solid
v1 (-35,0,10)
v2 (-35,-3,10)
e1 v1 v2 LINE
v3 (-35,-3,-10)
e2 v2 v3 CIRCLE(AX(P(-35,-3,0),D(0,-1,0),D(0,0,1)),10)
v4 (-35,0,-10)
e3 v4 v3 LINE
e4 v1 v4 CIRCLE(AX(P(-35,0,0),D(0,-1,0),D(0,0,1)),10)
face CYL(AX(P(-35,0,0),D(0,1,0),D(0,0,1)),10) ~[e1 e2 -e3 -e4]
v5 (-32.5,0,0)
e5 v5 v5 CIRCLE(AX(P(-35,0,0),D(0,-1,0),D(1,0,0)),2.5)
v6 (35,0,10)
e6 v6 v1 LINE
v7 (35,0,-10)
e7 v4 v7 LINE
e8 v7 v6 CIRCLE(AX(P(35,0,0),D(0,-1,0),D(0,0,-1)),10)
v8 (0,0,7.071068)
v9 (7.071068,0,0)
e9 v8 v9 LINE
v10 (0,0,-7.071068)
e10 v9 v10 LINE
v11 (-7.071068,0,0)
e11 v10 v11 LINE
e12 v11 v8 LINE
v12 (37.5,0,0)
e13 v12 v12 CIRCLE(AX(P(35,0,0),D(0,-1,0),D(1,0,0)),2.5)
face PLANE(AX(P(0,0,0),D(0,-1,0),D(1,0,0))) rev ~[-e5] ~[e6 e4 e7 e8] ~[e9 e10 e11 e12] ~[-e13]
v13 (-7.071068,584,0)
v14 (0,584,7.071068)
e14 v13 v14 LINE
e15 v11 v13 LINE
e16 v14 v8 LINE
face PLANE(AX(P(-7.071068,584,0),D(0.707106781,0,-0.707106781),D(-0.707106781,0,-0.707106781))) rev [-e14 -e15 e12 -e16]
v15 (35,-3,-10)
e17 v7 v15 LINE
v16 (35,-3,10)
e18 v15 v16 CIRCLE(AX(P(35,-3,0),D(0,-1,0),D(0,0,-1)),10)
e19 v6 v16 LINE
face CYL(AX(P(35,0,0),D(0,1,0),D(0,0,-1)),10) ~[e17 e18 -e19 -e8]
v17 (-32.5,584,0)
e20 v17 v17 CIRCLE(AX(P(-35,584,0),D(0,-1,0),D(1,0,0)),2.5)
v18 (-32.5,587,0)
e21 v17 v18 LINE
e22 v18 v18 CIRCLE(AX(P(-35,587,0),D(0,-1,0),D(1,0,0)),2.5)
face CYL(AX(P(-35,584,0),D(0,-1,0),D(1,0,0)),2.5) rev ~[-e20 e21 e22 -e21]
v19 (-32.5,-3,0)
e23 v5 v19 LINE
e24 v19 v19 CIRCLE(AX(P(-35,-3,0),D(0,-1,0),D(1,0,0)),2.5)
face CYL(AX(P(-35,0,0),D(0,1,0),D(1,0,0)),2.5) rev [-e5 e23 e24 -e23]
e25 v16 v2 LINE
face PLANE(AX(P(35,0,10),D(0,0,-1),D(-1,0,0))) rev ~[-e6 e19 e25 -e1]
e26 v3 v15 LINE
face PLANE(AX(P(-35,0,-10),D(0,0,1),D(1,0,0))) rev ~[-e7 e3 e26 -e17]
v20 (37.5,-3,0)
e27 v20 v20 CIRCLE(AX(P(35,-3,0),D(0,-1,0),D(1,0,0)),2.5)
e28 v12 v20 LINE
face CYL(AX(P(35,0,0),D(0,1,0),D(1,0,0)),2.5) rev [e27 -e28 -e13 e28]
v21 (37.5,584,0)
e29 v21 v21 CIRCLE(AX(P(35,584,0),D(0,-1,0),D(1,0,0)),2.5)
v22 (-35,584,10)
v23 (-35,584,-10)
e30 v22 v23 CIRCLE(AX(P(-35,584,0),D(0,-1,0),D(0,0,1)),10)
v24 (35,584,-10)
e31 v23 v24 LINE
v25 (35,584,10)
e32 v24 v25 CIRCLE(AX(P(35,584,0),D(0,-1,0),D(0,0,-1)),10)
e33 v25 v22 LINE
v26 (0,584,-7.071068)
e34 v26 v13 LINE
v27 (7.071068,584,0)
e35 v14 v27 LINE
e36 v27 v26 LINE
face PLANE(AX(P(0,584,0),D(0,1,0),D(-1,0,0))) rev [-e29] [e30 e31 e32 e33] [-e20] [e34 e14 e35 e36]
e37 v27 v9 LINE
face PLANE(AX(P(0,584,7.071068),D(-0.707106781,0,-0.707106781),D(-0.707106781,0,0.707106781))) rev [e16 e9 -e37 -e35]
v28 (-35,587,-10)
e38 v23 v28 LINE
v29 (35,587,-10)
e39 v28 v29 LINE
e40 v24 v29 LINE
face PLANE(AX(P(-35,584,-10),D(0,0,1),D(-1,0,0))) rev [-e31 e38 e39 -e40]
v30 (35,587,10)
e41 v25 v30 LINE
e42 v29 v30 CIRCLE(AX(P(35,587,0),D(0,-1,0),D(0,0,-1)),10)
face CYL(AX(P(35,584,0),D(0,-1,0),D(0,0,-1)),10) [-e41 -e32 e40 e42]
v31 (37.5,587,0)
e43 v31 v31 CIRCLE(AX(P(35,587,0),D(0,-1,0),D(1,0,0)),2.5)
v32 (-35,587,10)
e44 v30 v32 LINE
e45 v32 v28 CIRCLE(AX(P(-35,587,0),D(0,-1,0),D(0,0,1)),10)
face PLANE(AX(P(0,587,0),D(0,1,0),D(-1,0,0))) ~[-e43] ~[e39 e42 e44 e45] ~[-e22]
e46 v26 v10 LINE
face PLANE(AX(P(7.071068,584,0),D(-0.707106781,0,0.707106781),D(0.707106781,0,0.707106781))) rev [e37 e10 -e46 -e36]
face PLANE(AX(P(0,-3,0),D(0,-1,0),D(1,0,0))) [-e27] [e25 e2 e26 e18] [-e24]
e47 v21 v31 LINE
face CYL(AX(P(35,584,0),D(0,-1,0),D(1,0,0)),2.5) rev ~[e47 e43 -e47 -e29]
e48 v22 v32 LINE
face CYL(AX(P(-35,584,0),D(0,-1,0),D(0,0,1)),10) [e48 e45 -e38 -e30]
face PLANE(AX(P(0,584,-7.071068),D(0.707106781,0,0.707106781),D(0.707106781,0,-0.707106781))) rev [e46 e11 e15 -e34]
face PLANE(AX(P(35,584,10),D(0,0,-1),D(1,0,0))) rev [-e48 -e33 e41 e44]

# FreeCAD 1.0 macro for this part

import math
import FreeCAD as App
import Part
import Sketcher


def add_polygon(sketch, points):
    """Adds a closed chain of lines whose ends are joined by coincident constraints."""
    first, n = sketch.GeometryCount, len(points)
    for a, b in zip(points, points[1:] + points[:1]):
        sketch.addGeometry(Part.LineSegment(App.Vector(*a, 0), App.Vector(*b, 0)), False)
    for i in range(n):
        sketch.addConstraint(Sketcher.Constraint("Coincident", first + i, 2, first + (i + 1) % n, 1))

doc = App.newDocument("Part")
body = doc.addObject("PartDesign::Body", "Body")

# Sketch on XZ plane
sketch1 = body.newObject("Sketcher::SketchObject", "Sketch")
sketch1.AttachmentSupport = (doc.getObject("XZ_Plane"), [""])
sketch1.MapMode = "FlatFace"
sketch1.addGeometry(Part.ArcOfCircle(Part.Circle(App.Vector(35, 0, 0), App.Vector(0, 0, 1), 10), math.radians(-90), math.radians(90)), False)
sketch1.addGeometry(Part.LineSegment(App.Vector(35, 10, 0), App.Vector(-35, 10, 0)), False)
sketch1.addGeometry(Part.ArcOfCircle(Part.Circle(App.Vector(-35, 0, 0), App.Vector(0, 0, 1), 10), math.radians(90), math.radians(270)), False)
sketch1.addGeometry(Part.LineSegment(App.Vector(-35, -10, 0), App.Vector(35, -10, 0)), False)
sketch1.addGeometry(Part.Circle(App.Vector(-35, 0, 0), App.Vector(0, 0, 1), 2.5), False)
sketch1.addGeometry(Part.Circle(App.Vector(35, 0, 0), App.Vector(0, 0, 1), 2.5), False)
sketch1.addConstraint(Sketcher.Constraint("Tangent", 0, 2, 1, 1))
sketch1.addConstraint(Sketcher.Constraint("Tangent", 1, 2, 2, 1))
sketch1.addConstraint(Sketcher.Constraint("Tangent", 2, 2, 3, 1))
sketch1.addConstraint(Sketcher.Constraint("Tangent", 3, 2, 0, 1))
sketch1.addConstraint(Sketcher.Constraint("Horizontal", 1))
sketch1.addConstraint(Sketcher.Constraint("Horizontal", 3))
sketch1.addConstraint(Sketcher.Constraint("Coincident", 4, 3, 2, 3))
sketch1.addConstraint(Sketcher.Constraint("Coincident", 5, 3, 0, 3))
sketch1.addConstraint(Sketcher.Constraint("Equal", 4, 5))
sketch1.addConstraint(Sketcher.Constraint("Symmetric", 0, 3, 2, 3, -1, 1))
sketch1.addConstraint(Sketcher.Constraint("Diameter", 4, 5.0))
sketch1.addConstraint(Sketcher.Constraint("Radius", 0, 10.0))
sketch1.addConstraint(Sketcher.Constraint("DistanceX", 1, 2, 1, 1, 70.0))
pad1 = body.newObject("PartDesign::Pad", "Pad")
pad1.Profile = sketch1
pad1.Length = 3

# Sketch on XZ plane
sketch2 = body.newObject("Sketcher::SketchObject", "Sketch001")
sketch2.AttachmentSupport = (doc.getObject("XZ_Plane"), [""])
sketch2.MapMode = "FlatFace"
add_polygon(sketch2, [(-7, 0), (0, 7), (7, 0), (0, -7)])  # lines 0-3
sketch2.addConstraint(Sketcher.Constraint("Symmetric", 0, 2, 2, 2, -1, 1))
sketch2.addConstraint(Sketcher.Constraint("Symmetric", 1, 2, 3, 2, -1, 1))
sketch2.addConstraint(Sketcher.Constraint("PointOnObject", 0, 2, -2))
sketch2.addConstraint(Sketcher.Constraint("PointOnObject", 1, 2, -1))
sketch2.addConstraint(Sketcher.Constraint("Perpendicular", 0, 1))
sketch2.addConstraint(Sketcher.Constraint("Distance", 0, 10.0))
pad2 = body.newObject("PartDesign::Pad", "Pad001")
pad2.Profile = sketch2
pad2.Length = 292
pad2.Reversed = True
body2 = doc.addObject("PartDesign::Body", "Body001")
doc.recompute()

body2.BaseFeature = body
doc.recompute()

mirroring = doc.addObject("Part::Mirroring", "Mirroring")
mirroring.Source = body
mirroring.Base = App.Vector(0, 292, 0)
mirroring.Normal = App.Vector(0, -1, 0)
body3 = doc.addObject("PartDesign::Body", "Body002")
body3.BaseFeature = mirroring
boolean = body2.newObject("PartDesign::Boolean", "Boolean")
boolean.Type = "Fuse"
boolean.addObjects([body3])
doc.recompute()
mirroring.Visibility = False

doc.recompute()
